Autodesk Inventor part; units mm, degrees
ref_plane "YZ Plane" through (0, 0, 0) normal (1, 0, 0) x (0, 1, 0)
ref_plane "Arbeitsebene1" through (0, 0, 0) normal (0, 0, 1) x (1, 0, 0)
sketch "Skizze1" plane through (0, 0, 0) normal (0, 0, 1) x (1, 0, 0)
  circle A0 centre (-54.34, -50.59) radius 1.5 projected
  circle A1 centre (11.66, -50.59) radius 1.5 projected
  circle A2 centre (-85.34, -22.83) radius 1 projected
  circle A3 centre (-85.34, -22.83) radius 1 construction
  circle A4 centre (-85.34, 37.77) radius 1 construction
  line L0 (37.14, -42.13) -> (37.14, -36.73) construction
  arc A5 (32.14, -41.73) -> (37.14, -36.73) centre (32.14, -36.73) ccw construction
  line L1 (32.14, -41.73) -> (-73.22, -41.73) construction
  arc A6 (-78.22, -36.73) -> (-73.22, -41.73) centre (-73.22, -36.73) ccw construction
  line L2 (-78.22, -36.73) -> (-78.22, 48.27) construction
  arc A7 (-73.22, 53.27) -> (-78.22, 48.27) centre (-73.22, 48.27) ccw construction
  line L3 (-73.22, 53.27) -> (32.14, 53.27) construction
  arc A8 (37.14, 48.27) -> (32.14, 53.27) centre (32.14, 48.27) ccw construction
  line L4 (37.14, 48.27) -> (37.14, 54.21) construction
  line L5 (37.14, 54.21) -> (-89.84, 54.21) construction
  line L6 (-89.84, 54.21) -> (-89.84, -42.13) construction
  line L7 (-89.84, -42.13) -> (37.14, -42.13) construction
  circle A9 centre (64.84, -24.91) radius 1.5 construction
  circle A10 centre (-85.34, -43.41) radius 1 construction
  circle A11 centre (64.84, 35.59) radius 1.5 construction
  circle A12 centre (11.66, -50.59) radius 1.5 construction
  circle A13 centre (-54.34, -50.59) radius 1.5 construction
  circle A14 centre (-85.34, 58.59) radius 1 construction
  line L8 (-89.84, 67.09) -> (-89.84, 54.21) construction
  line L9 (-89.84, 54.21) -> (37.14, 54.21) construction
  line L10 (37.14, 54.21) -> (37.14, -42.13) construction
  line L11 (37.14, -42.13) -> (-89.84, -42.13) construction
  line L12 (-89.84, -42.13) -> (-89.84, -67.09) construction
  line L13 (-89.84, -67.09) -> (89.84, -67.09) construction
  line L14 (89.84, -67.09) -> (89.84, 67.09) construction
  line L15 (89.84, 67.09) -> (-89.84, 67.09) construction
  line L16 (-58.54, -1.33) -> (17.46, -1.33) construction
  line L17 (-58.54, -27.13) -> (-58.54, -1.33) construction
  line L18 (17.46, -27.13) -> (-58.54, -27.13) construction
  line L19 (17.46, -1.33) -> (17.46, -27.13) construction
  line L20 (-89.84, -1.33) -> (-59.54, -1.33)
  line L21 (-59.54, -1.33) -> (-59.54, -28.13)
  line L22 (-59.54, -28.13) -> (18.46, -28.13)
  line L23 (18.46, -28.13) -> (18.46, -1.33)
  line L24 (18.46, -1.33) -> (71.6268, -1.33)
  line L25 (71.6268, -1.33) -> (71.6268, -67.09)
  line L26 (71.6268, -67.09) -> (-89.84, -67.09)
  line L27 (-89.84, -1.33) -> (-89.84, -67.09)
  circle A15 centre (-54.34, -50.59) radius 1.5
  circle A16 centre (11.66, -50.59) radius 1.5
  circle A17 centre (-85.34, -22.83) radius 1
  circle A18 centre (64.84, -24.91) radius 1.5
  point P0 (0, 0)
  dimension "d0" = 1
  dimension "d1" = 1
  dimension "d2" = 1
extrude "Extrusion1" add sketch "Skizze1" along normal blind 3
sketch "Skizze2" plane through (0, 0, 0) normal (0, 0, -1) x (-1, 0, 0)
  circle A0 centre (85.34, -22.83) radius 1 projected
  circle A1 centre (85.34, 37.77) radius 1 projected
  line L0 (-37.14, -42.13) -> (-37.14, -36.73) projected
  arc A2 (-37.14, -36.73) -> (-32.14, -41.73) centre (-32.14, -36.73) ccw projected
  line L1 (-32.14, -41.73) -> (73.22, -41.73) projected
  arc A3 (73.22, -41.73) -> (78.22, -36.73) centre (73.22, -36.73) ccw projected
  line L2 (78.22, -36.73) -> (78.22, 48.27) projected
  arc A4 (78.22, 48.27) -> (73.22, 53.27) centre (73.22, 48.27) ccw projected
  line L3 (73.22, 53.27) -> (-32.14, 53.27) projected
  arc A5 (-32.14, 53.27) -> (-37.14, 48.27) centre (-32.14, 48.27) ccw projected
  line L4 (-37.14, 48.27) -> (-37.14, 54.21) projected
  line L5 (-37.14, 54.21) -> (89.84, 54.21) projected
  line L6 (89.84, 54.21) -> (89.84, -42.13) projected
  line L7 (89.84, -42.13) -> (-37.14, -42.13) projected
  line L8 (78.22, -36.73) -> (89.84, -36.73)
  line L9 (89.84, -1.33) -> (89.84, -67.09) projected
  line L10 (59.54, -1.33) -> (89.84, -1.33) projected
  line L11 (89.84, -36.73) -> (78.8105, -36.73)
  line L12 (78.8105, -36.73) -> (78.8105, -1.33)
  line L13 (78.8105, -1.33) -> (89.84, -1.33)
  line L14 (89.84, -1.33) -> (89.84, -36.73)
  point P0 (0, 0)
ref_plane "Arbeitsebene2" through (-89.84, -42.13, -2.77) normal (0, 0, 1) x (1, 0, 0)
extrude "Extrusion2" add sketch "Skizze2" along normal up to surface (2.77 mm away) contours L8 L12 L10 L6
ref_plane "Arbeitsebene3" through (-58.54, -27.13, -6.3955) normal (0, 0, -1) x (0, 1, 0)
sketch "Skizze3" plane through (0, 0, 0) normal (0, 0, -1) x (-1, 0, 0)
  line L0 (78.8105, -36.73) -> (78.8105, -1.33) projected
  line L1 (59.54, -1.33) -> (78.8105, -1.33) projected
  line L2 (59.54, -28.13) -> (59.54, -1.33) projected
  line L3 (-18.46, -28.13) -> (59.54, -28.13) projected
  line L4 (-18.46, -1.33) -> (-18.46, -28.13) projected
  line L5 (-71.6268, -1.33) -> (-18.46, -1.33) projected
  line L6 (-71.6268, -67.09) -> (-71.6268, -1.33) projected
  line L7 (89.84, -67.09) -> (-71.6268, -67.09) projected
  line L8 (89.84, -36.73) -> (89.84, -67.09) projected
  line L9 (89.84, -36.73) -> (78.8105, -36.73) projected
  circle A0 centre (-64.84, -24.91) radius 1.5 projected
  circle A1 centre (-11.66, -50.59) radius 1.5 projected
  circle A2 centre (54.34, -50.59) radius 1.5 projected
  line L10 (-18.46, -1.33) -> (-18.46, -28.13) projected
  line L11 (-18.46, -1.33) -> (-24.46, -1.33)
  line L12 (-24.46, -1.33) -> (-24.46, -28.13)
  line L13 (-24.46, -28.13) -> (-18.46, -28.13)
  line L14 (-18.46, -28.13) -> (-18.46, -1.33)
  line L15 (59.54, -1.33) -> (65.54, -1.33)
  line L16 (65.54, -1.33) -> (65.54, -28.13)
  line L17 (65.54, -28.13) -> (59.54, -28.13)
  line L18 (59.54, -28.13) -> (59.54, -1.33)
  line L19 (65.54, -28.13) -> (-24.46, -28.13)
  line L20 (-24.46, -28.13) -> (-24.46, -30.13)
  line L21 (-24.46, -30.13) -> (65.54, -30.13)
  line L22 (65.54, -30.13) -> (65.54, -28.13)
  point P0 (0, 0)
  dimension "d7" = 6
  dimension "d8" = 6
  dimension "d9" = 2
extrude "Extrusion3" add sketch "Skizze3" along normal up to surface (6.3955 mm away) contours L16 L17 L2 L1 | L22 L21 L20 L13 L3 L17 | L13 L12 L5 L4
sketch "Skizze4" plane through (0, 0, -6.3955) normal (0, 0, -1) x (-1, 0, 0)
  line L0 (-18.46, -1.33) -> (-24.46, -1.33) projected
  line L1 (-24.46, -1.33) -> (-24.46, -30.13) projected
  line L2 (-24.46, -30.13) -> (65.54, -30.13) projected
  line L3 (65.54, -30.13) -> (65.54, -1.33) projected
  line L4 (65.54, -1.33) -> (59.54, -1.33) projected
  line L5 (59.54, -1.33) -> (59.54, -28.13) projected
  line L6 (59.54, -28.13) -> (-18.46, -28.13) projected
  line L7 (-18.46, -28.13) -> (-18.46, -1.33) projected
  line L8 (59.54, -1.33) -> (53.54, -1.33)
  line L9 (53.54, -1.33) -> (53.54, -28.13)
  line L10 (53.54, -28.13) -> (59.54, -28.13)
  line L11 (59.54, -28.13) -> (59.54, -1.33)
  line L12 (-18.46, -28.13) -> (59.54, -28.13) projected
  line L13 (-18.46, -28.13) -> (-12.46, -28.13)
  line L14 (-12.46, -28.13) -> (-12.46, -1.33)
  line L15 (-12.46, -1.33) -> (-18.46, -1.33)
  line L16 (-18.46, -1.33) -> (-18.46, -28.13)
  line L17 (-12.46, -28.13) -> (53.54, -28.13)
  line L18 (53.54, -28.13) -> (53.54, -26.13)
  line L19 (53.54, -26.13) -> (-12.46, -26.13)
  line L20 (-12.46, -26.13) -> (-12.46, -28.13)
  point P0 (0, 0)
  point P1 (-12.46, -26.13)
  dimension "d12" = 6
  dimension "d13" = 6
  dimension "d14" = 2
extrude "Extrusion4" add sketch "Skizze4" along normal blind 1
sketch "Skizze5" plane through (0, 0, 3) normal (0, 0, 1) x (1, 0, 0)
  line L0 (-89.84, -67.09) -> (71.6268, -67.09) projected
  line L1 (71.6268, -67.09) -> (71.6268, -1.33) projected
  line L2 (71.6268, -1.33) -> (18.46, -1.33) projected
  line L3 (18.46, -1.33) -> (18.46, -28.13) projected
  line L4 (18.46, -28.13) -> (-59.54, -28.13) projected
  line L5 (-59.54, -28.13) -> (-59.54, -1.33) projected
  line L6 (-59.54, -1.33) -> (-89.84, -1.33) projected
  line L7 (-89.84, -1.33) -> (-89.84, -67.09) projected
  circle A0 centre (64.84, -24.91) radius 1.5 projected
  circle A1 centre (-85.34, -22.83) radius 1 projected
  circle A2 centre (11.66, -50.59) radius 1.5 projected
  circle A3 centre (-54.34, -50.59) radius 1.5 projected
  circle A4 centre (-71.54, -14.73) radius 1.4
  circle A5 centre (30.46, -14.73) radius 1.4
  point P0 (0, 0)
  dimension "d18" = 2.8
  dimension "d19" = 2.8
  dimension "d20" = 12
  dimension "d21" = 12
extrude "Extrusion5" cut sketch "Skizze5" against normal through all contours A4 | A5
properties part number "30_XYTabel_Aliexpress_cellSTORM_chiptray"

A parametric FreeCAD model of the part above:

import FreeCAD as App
import Part
import Sketcher
from FreeCAD import Vector


def add_polygon(sketch, points):
    """Adds a closed chain of lines whose ends are joined by coincident constraints."""
    first, n = sketch.GeometryCount, len(points)
    for a, b in zip(points, points[1:] + points[:1]):
        sketch.addGeometry(Part.LineSegment(App.Vector(*a, 0), App.Vector(*b, 0)), False)
    for i in range(n):
        sketch.addConstraint(Sketcher.Constraint("Coincident", first + i, 2, first + (i + 1) % n, 1))

doc = App.newDocument("Part")
body = doc.addObject("PartDesign::Body", "Body")

# Sketch on XY plane
sketch1 = body.newObject("Sketcher::SketchObject", "Sketch")
sketch1.AttachmentSupport = (doc.getObject("XY_Plane"), [""])
sketch1.MapMode = "FlatFace"
add_polygon(sketch1, [(-59.5, -1.3), (-89.8, -1.3), (-89.8, -67.1), (71.6, -67.1), (71.6, -1.3), (18.5, -1.3), (18.5, -28.1), (-59.5, -28.1)])  # lines 0-7
sketch1.addGeometry(Part.Circle(Vector(-54.3, -50.6, 0), Vector(0, 0, 1), 1.5), False)  # 8
sketch1.addGeometry(Part.Circle(Vector(11.7, -50.6, 0), Vector(0, 0, 1), 1.5), False)  # 9
sketch1.addGeometry(Part.Circle(Vector(-85.3, -22.8, 0), Vector(0, 0, 1), 1), False)  # 10
sketch1.addGeometry(Part.Circle(Vector(64.8, -24.9, 0), Vector(0, 0, 1), 1.5), False)  # 11
sketch1.addConstraint([
    Sketcher.Constraint("Horizontal", 0),
    Sketcher.Constraint("Vertical", 1),
    Sketcher.Constraint("Horizontal", 2),
    Sketcher.Constraint("Vertical", 3),
    Sketcher.Constraint("Horizontal", 4),
    Sketcher.Constraint("Vertical", 5),
    Sketcher.Constraint("Horizontal", 6),
    Sketcher.Constraint("Vertical", 7),
    Sketcher.Constraint("Equal", 8, 9),
    Sketcher.Constraint("Equal", 9, 11),
    Sketcher.Constraint("Horizontal", 8, 3, 9, 3),
    Sketcher.Constraint("Horizontal", 0, 2, 3, 2),
    Sketcher.Constraint("Diameter", 10, 2.0),
    Sketcher.Constraint("Diameter", 8, 3.0),
    Sketcher.Constraint("DistanceX", 6, 2, 6, 1, 78.0),
    Sketcher.Constraint("DistanceX", 0, 2, 0, 1, 30.3),
    Sketcher.Constraint("DistanceY", 5, 2, 5, 1, 26.8),
    Sketcher.Constraint("DistanceX", 8, 3, 9, 3, 66.0),
    Sketcher.Constraint("DistanceX", 10, 3, 8, 3, 31.0),
    Sketcher.Constraint("DistanceY", 1, 2, 1, 1, 65.76),
    Sketcher.Constraint("DistanceX", 0, 2, 10, 3, 4.5),
    Sketcher.Constraint("DistanceY", 10, 3, 0, 2, 21.5),
    Sketcher.Constraint("DistanceY", 1, 2, 8, 3, 16.5),
    Sketcher.Constraint("DistanceX", 8, 3, -1, 1, 54.34),
    Sketcher.Constraint("DistanceY", 8, 3, -1, 1, 50.59),
    Sketcher.Constraint("DistanceX", -1, 1, 11, 3, 64.84),
    Sketcher.Constraint("DistanceY", 11, 3, -1, 1, 24.91),
    Sketcher.Constraint("DistanceX", 2, 1, 2, 2, 161.4668),
])
pad1 = body.newObject("PartDesign::Pad", "Pad")
pad1.Profile = sketch1
pad1.Length = 3

# Sketch on XY plane
sketch2 = body.newObject("Sketcher::SketchObject", "Sketch001")
sketch2.AttachmentSupport = (doc.getObject("XY_Plane"), [""])
sketch2.MapMode = "FlatFace"
add_polygon(sketch2, [(-78.8, -36.7), (-89.8, -36.7), (-89.8, -1.3), (-78.8, -1.3)])  # lines 0-3
sketch2.addGeometry(Part.Circle(Vector(-85.3, -22.8, 0), Vector(0, 0, 1), 1), False)  # 4
sketch2.addConstraint([
    Sketcher.Constraint("Horizontal", 0),
    Sketcher.Constraint("Vertical", 1),
    Sketcher.Constraint("Horizontal", 2),
    Sketcher.Constraint("Vertical", 3),
    Sketcher.Constraint("Diameter", 4, 2.0),
    Sketcher.Constraint("DistanceY", 1, 1, 1, 2, 35.4),
    Sketcher.Constraint("DistanceX", 0, 2, 4, 3, 4.5),
    Sketcher.Constraint("DistanceY", 0, 2, 4, 3, 13.9),
    Sketcher.Constraint("DistanceX", 4, 3, -1, 1, 85.34),
    Sketcher.Constraint("DistanceY", 4, 3, -1, 1, 22.83),
    Sketcher.Constraint("DistanceX", 0, 2, 0, 1, 11.0295),
])
pad2 = body.newObject("PartDesign::Pad", "Pad001")
pad2.Profile = sketch2
pad2.Length = 2.77
pad2.Reversed = True

# Sketch on XY plane
sketch3 = body.newObject("Sketcher::SketchObject", "Sketch002")
sketch3.AttachmentSupport = (doc.getObject("XY_Plane"), [""])
sketch3.MapMode = "FlatFace"
add_polygon(sketch3, [(-66, -1), (-60, -1), (-60, -28), (18, -28), (18, -1), (24, -1), (24, -30), (-66, -30)])  # lines 0-7
sketch3.addConstraint([
    Sketcher.Constraint("Horizontal", 0),
    Sketcher.Constraint("Vertical", 1),
    Sketcher.Constraint("Horizontal", 2),
    Sketcher.Constraint("Vertical", 3),
    Sketcher.Constraint("Horizontal", 4),
    Sketcher.Constraint("Vertical", 5),
    Sketcher.Constraint("Horizontal", 6),
    Sketcher.Constraint("Vertical", 7),
    Sketcher.Constraint("Horizontal", 0, 2, 3, 2),
    Sketcher.Constraint("Equal", 0, 4),
    Sketcher.Constraint("DistanceX", 0, 1, 0, 2, 6.0),
    Sketcher.Constraint("DistanceY", 5, 2, 2, 2, 2.0),
    Sketcher.Constraint("DistanceX", 2, 1, 2, 2, 78.0),
    Sketcher.Constraint("DistanceY", 1, 2, 1, 1, 26.8),
    Sketcher.Constraint("DistanceX", 0, 2, -1, 1, 59.54),
    Sketcher.Constraint("DistanceY", 0, 2, -1, 1, 1.33),
])
pad3 = body.newObject("PartDesign::Pad", "Pad002")
pad3.Profile = sketch3
pad3.Length = 6.3955
pad3.Reversed = True

# Sketch on XY plane
sketch4 = body.newObject("Sketcher::SketchObject", "Sketch003")
sketch4.AttachmentSupport = (doc.getObject("XY_Plane"), [""])
sketch4.MapMode = "FlatFace"
sketch4.AttachmentOffset = App.Placement(Vector(0, 0, -6.3955), App.Rotation())
add_polygon(sketch4, [(-66, -1), (-54, -1), (-54, -26), (12, -26), (12, -1), (24, -1), (24, -30), (-66, -30)])  # lines 0-7
sketch4.addConstraint([
    Sketcher.Constraint("Horizontal", 0),
    Sketcher.Constraint("Vertical", 1),
    Sketcher.Constraint("Horizontal", 2),
    Sketcher.Constraint("Vertical", 3),
    Sketcher.Constraint("Horizontal", 4),
    Sketcher.Constraint("Vertical", 5),
    Sketcher.Constraint("Horizontal", 6),
    Sketcher.Constraint("Vertical", 7),
    Sketcher.Constraint("Horizontal", 0, 2, 3, 2),
    Sketcher.Constraint("Equal", 0, 4),
    Sketcher.Constraint("DistanceX", 0, 1, 0, 2, 12.0),
    Sketcher.Constraint("DistanceX", 2, 1, 2, 2, 66.0),
    Sketcher.Constraint("DistanceY", 1, 2, 1, 1, 24.8),
    Sketcher.Constraint("DistanceY", 5, 2, 5, 1, 28.8),
    Sketcher.Constraint("DistanceX", 0, 2, -1, 1, 53.54),
    Sketcher.Constraint("DistanceY", 0, 2, -1, 1, 1.33),
])
pad4 = body.newObject("PartDesign::Pad", "Pad003")
pad4.Profile = sketch4
pad4.Length = 1
pad4.Reversed = True

# Sketch on XY plane
sketch5 = body.newObject("Sketcher::SketchObject", "Sketch004")
sketch5.AttachmentSupport = (doc.getObject("XY_Plane"), [""])
sketch5.MapMode = "FlatFace"
sketch5.AttachmentOffset = App.Placement(Vector(0, 0, 3), App.Rotation())
sketch5.addGeometry([
    Part.Circle(Vector(-71.5, -14.7, 0), Vector(0, 0, 1), 1.4),
    Part.Circle(Vector(30.5, -14.7, 0), Vector(0, 0, 1), 1.4),
], False)
sketch5.addConstraint([
    Sketcher.Constraint("Equal", 0, 1),
    Sketcher.Constraint("Horizontal", 0, 3, 1, 3),
    Sketcher.Constraint("Diameter", 0, 2.8),
    Sketcher.Constraint("DistanceX", 0, 3, 1, 3, 102.0),
    Sketcher.Constraint("DistanceX", 0, 3, -1, 1, 71.54),
    Sketcher.Constraint("DistanceY", 0, 3, -1, 1, 14.73),
])
pocket1 = body.newObject("PartDesign::Pocket", "Pocket")
pocket1.Profile = sketch5
pocket1.Type = "ThroughAll"

doc.recompute()
